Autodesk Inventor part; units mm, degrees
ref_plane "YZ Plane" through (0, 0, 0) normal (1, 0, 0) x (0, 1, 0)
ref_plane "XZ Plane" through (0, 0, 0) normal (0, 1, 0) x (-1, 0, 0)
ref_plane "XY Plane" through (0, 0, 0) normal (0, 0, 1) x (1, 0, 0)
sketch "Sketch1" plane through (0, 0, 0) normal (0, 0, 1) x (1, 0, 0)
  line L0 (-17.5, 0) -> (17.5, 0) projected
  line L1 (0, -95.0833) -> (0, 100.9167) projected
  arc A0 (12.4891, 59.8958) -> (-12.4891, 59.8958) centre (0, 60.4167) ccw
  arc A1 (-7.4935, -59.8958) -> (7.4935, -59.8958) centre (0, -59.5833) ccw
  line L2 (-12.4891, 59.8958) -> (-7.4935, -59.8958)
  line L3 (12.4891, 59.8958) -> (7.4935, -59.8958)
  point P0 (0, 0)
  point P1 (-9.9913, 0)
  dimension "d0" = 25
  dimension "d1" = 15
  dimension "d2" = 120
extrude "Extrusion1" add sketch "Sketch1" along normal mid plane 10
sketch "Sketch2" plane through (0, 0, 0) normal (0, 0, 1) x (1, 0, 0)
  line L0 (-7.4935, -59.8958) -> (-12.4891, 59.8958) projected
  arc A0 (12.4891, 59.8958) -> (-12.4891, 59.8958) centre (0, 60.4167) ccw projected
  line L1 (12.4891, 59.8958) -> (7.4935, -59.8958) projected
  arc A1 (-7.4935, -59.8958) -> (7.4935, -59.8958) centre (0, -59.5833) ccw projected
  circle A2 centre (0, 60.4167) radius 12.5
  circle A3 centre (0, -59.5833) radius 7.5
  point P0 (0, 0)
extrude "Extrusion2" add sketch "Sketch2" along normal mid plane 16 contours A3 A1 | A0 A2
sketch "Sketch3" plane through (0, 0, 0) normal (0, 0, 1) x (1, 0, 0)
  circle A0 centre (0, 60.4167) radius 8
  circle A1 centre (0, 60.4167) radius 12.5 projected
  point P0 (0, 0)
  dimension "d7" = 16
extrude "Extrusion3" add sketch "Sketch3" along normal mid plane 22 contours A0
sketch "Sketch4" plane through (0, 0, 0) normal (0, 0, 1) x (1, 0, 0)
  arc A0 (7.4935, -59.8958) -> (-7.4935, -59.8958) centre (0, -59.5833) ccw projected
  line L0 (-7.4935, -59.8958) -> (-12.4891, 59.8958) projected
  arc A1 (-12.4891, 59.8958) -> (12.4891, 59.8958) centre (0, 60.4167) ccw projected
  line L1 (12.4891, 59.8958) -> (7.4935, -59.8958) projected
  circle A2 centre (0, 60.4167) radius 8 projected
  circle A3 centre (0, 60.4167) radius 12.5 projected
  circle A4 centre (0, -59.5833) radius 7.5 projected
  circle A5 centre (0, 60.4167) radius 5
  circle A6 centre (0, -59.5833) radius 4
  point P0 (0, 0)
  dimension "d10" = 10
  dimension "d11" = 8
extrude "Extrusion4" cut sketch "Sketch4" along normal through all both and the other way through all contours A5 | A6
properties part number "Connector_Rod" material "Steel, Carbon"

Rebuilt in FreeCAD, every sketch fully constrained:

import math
import FreeCAD as App
import Part
import Sketcher
from FreeCAD import Vector

doc = App.newDocument("Part")
body = doc.addObject("PartDesign::Body", "Body")

sketch1 = body.newObject("Sketcher::SketchObject", "Sketch")
sketch1.AttachmentSupport = (doc.getObject("XY_Plane"), [""])
sketch1.MapMode = "FlatFace"
sketch1.addGeometry([
    Part.LineSegment(Vector(-12.4891, 59.8958, 0), Vector(-7.4935, -59.8958, 0)),
    Part.ArcOfCircle(Part.Circle(Vector(0, -59.5833, 0), Vector(0, 0, 1), 7.500013), math.radians(-177.611989), math.radians(-2.388011)),
    Part.LineSegment(Vector(7.4935, -59.8958, 0), Vector(12.4891, 59.8958, 0)),
    Part.ArcOfCircle(Part.Circle(Vector(0, 60.4167, 0), Vector(0, 0, 1), 12.499958), math.radians(-2.388329), math.radians(182.388329)),
], False)
sketch1.addConstraint([
    Sketcher.Constraint("Tangent", 0, 2, 1, 1),
    Sketcher.Constraint("Tangent", 1, 2, 2, 1),
    Sketcher.Constraint("Tangent", 2, 2, 3, 1),
    Sketcher.Constraint("Tangent", 3, 2, 0, 1),
    Sketcher.Constraint("Symmetric", 0, 2, 1, 2, -2),
    Sketcher.Constraint("Radius", 1, 7.5),
    Sketcher.Constraint("Radius", 3, 12.5),
    Sketcher.Constraint("DistanceY", 1, 3, 3, 3, 120.0),
    Sketcher.Constraint("DistanceY", 1, 3, -1, 1, 59.5833),
])
pad1 = body.newObject("PartDesign::Pad", "Pad")
pad1.Profile = sketch1
pad1.Length = 10
pad1.Midplane = True

sketch2 = body.newObject("Sketcher::SketchObject", "Sketch001")
sketch2.AttachmentSupport = (doc.getObject("XY_Plane"), [""])
sketch2.MapMode = "FlatFace"
sketch2.addGeometry([
    Part.Circle(Vector(0, -59.5833, 0), Vector(0, 0, 1), 7.500013),
    Part.Circle(Vector(0, 60.4167, 0), Vector(0, 0, 1), 12.5),
], False)
sketch2.addConstraint([
    Sketcher.Constraint("PointOnObject", 0, 3, -2),
    Sketcher.Constraint("PointOnObject", 1, 3, -2),
    Sketcher.Constraint("Diameter", 0, 15.0),
    Sketcher.Constraint("Diameter", 1, 25.0),
    Sketcher.Constraint("DistanceY", 0, 3, 1, 3, 120.0),
    Sketcher.Constraint("DistanceY", 0, 3, -1, 1, 59.5833),
])
pad2 = body.newObject("PartDesign::Pad", "Pad001")
pad2.Profile = sketch2
pad2.Length = 16
pad2.Midplane = True

sketch3 = body.newObject("Sketcher::SketchObject", "Sketch002")
sketch3.AttachmentSupport = (doc.getObject("XY_Plane"), [""])
sketch3.MapMode = "FlatFace"
sketch3.addGeometry(Part.Circle(Vector(0, 60.4167, 0), Vector(0, 0, 1), 8), False)
sketch3.addConstraint([
    Sketcher.Constraint("PointOnObject", 0, 3, -2),
    Sketcher.Constraint("Diameter", 0, 16.0),
    Sketcher.Constraint("DistanceY", -1, 1, 0, 3, 60.4167),
])
pad3 = body.newObject("PartDesign::Pad", "Pad002")
pad3.Profile = sketch3
pad3.Length = 22
pad3.Midplane = True

sketch4 = body.newObject("Sketcher::SketchObject", "Sketch003")
sketch4.AttachmentSupport = (doc.getObject("XY_Plane"), [""])
sketch4.MapMode = "FlatFace"
sketch4.addGeometry([
    Part.Circle(Vector(0, 60.4167, 0), Vector(0, 0, 1), 5),
    Part.Circle(Vector(0, -59.5833, 0), Vector(0, 0, 1), 4),
], False)
sketch4.addConstraint([
    Sketcher.Constraint("PointOnObject", 0, 3, -2),
    Sketcher.Constraint("PointOnObject", 1, 3, -2),
    Sketcher.Constraint("Diameter", 0, 10.0),
    Sketcher.Constraint("Diameter", 1, 8.0),
    Sketcher.Constraint("DistanceY", 1, 3, 0, 3, 120.0),
    Sketcher.Constraint("DistanceY", -1, 1, 0, 3, 60.4167),
])
pocket1 = body.newObject("PartDesign::Pocket", "Pocket")
pocket1.Profile = sketch4
pocket1.Type = "ThroughAll"
pocket1.Midplane = True

doc.recompute()
